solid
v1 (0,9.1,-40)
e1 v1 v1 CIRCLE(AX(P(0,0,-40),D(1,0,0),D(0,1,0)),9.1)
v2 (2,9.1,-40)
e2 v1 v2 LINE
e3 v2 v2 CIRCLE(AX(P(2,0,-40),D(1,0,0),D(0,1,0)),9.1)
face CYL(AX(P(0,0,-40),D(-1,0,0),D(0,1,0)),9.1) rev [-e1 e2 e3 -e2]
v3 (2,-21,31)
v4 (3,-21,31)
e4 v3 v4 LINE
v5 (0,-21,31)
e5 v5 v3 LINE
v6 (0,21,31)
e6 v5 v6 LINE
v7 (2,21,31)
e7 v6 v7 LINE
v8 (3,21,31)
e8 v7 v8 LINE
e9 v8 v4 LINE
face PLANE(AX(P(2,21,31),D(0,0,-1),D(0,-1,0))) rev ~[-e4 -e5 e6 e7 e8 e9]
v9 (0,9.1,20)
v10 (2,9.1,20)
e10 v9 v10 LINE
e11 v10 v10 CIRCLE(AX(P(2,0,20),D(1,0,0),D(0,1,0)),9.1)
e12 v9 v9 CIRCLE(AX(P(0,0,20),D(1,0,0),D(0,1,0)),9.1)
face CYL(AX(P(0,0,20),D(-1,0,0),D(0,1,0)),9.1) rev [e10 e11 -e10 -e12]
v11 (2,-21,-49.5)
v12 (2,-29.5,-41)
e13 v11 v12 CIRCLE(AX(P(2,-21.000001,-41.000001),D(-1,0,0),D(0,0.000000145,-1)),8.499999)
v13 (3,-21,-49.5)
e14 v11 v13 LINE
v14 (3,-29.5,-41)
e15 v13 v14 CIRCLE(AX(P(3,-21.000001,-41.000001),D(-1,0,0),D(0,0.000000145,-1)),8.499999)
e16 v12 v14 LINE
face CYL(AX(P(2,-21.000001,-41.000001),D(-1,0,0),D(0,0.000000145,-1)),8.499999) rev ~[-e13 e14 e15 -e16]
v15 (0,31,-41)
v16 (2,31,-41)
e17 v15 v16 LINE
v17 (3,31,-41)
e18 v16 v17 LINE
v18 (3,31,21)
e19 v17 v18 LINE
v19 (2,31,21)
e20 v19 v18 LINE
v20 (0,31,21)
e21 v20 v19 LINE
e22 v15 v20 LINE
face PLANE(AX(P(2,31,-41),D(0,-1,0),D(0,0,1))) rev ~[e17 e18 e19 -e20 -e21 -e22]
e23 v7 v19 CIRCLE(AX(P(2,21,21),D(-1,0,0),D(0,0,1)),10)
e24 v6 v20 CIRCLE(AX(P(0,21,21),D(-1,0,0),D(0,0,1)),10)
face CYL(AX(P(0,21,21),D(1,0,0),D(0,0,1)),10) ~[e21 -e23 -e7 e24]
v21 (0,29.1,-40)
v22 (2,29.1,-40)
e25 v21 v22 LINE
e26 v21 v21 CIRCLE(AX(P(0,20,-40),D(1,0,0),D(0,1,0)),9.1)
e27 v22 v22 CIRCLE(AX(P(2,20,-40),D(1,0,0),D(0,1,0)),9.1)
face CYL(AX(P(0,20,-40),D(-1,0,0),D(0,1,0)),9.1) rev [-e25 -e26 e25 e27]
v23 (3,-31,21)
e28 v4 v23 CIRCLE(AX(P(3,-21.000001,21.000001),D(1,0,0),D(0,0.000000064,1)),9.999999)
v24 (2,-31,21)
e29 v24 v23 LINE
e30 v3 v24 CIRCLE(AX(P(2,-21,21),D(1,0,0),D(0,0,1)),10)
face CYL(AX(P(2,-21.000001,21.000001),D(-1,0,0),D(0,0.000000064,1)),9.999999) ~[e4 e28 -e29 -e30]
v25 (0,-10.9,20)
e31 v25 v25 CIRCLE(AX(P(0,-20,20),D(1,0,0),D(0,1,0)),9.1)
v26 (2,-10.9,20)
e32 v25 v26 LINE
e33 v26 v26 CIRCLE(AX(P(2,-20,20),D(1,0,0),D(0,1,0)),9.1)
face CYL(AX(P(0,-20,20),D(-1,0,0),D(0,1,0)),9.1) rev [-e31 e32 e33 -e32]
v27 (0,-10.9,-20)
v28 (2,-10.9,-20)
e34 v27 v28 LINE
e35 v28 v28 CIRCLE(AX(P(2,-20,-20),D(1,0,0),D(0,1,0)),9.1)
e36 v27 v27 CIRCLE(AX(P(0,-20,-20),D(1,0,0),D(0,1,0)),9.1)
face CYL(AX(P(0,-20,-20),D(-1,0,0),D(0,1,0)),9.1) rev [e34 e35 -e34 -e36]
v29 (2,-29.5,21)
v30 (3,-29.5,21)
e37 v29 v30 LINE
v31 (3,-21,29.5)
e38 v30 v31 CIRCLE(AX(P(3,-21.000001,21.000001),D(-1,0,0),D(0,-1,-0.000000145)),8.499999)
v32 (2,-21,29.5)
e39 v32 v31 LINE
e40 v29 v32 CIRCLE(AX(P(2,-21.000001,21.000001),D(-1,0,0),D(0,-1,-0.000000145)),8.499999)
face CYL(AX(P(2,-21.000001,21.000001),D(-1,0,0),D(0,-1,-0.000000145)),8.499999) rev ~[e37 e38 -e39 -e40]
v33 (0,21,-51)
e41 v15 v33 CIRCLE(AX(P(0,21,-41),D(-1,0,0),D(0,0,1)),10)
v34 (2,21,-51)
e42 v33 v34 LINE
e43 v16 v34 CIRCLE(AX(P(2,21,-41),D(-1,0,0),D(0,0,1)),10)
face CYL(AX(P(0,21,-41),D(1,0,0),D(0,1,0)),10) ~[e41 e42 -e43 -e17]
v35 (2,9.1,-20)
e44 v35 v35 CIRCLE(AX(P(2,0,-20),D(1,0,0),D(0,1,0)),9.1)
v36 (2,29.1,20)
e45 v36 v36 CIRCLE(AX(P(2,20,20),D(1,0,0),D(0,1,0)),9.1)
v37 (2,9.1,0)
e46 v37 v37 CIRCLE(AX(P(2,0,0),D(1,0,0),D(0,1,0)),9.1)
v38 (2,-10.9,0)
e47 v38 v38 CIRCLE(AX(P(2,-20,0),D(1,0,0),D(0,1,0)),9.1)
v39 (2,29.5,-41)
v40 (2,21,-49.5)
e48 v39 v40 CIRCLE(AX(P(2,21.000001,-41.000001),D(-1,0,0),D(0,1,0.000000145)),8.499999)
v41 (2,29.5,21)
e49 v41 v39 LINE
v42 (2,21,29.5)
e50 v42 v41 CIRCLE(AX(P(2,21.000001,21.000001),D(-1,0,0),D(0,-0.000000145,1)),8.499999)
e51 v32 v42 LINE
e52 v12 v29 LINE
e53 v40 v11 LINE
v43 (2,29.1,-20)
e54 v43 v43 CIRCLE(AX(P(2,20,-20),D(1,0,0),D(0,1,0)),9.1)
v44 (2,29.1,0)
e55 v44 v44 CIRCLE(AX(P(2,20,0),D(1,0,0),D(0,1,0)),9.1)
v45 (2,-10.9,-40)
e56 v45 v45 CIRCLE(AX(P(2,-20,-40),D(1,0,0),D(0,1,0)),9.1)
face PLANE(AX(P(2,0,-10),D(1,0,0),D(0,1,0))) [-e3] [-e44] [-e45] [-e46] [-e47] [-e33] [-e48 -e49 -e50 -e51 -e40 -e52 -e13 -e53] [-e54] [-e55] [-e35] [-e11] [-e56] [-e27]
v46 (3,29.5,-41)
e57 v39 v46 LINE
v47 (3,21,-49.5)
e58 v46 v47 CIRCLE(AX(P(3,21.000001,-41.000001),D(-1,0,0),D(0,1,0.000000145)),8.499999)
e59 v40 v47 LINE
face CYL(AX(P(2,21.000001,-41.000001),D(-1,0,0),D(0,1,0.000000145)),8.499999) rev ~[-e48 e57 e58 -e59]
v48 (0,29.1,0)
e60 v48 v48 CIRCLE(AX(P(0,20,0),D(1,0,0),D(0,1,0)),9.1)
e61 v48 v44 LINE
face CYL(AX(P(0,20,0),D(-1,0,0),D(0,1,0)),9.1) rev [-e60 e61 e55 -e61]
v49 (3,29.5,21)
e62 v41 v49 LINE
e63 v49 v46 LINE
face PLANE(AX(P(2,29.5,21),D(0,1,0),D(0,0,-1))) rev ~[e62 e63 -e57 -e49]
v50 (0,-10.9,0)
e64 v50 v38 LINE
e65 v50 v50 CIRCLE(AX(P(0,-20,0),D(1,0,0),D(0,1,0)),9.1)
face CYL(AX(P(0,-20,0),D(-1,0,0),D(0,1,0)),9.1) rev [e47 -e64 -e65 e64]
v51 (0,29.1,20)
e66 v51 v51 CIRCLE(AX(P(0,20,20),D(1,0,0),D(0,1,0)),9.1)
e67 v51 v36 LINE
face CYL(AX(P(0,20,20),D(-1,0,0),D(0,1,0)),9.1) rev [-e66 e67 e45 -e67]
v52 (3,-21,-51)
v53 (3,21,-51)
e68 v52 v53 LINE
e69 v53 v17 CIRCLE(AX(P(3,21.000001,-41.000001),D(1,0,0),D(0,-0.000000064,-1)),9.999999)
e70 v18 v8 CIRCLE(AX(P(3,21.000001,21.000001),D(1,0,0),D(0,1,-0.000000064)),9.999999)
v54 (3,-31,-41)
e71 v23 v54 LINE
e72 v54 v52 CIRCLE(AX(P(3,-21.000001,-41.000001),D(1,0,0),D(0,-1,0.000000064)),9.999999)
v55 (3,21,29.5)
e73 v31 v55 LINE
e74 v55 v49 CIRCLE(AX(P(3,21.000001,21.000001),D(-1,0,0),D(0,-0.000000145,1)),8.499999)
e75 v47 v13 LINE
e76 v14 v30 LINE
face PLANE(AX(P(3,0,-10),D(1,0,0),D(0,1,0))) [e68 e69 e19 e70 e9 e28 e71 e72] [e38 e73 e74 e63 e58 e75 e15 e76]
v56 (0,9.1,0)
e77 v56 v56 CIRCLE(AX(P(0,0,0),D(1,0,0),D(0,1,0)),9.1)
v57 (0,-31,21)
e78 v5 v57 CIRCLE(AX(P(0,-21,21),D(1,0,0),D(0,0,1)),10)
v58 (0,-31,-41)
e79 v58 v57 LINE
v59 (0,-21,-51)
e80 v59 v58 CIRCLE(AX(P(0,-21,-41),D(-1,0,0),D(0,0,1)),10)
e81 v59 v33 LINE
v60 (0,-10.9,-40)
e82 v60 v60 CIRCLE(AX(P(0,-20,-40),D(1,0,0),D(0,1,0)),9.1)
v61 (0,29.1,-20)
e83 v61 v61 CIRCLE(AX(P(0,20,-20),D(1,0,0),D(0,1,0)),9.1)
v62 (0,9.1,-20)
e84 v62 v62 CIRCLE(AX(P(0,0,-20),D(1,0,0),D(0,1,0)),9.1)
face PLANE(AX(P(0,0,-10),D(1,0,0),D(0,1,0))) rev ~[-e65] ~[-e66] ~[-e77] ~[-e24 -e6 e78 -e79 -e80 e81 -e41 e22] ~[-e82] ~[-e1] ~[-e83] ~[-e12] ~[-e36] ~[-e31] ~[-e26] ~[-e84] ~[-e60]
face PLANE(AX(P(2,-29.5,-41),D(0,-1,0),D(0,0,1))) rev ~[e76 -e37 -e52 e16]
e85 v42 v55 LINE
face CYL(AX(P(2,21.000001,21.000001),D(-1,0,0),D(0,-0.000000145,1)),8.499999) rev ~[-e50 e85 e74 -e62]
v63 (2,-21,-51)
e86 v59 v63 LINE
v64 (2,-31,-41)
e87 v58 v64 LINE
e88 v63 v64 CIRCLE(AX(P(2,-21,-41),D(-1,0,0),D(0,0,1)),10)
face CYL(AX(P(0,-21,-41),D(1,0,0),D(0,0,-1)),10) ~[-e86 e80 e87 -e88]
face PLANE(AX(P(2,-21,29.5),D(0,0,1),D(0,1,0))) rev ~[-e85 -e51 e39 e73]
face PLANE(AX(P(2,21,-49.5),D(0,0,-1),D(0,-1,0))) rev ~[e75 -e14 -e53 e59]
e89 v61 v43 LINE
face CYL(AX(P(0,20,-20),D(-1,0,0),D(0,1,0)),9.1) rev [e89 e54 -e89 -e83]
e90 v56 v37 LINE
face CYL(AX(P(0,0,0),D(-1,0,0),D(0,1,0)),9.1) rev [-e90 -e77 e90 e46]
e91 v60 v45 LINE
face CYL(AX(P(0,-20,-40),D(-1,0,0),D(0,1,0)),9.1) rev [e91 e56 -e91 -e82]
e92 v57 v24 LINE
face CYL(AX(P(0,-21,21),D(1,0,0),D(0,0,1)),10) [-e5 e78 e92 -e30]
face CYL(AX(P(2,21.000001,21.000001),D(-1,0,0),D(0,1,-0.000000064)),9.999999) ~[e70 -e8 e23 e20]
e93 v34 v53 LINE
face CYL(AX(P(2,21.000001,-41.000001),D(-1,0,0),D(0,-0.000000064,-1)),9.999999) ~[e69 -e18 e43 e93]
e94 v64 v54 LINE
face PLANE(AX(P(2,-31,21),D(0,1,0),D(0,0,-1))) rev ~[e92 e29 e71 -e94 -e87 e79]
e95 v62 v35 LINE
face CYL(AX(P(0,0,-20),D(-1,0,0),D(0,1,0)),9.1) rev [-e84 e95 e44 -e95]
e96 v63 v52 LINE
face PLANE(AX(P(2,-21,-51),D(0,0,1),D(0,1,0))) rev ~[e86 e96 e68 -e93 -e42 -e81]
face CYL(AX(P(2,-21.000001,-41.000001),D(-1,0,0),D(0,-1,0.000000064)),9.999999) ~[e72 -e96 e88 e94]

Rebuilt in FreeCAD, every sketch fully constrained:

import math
import FreeCAD as App
import Part
import Sketcher
from FreeCAD import Vector
Q = App.Units.Quantity


def edges_at(feature, points):
    """Names of the edges that pass closest to the given points."""
    edges = feature.Shape.Edges
    near = lambda p: min(range(len(edges)), key=lambda i: edges[i].distToShape(Part.Vertex(*p))[0])
    return sorted({f"Edge{near(p) + 1}" for p in points})


def add_polygon(sketch, points):
    """Adds a closed chain of lines whose ends are joined by coincident constraints."""
    first, n = sketch.GeometryCount, len(points)
    for a, b in zip(points, points[1:] + points[:1]):
        sketch.addGeometry(Part.LineSegment(App.Vector(*a, 0), App.Vector(*b, 0)), False)
    for i in range(n):
        sketch.addConstraint(Sketcher.Constraint("Coincident", first + i, 2, first + (i + 1) % n, 1))

doc = App.newDocument("Part")
body = doc.addObject("PartDesign::Body", "Body")

# Sketch on YZ plane
sketch1 = body.newObject("Sketcher::SketchObject", "Sketch")
sketch1.AttachmentSupport = (doc.getObject("YZ_Plane"), [""])
sketch1.MapMode = "FlatFace"
add_polygon(sketch1, [(-31, 31), (-31, -51), (31, -51), (31, 31)])  # lines 0-3
sketch1.addGeometry(Part.Circle(Vector(-20, -40, 0), Vector(0, 0, 1), 9.1), False)  # 4
sketch1.addGeometry(Part.Circle(Vector(0, -40, 0), Vector(0, 0, 1), 9.1), False)  # 5
sketch1.addGeometry(Part.Circle(Vector(-20, -20, 0), Vector(0, 0, 1), 9.1), False)  # 6
sketch1.addGeometry(Part.Circle(Vector(0, -20, 0), Vector(0, 0, 1), 9.1), False)  # 7
sketch1.addGeometry(Part.Circle(Vector(20, -40, 0), Vector(0, 0, 1), 9.1), False)  # 8
sketch1.addGeometry(Part.Circle(Vector(20, -20, 0), Vector(0, 0, 1), 9.1), False)  # 9
sketch1.addGeometry(Part.Circle(Vector(-20, 0, 0), Vector(0, 0, 1), 9.1), False)  # 10
sketch1.addGeometry(Part.Circle(Vector(0, 0, 0), Vector(0, 0, 1), 9.1), False)  # 11
sketch1.addGeometry(Part.Circle(Vector(-20, 20, 0), Vector(0, 0, 1), 9.1), False)  # 12
sketch1.addGeometry(Part.Circle(Vector(0, 20, 0), Vector(0, 0, 1), 9.1), False)  # 13
sketch1.addGeometry(Part.Circle(Vector(20, 0, 0), Vector(0, 0, 1), 9.1), False)  # 14
sketch1.addGeometry(Part.Circle(Vector(20, 20, 0), Vector(0, 0, 1), 9.1), False)  # 15
sketch1.addConstraint(Sketcher.Constraint("Vertical", 0))
sketch1.addConstraint(Sketcher.Constraint("Horizontal", 1))
sketch1.addConstraint(Sketcher.Constraint("Vertical", 2))
sketch1.addConstraint(Sketcher.Constraint("Horizontal", 3))
sketch1.addConstraint(Sketcher.Constraint("Coincident", 11, 3, -1, 1))
sketch1.addConstraint(Sketcher.Constraint("Equal", 4, 5))
sketch1.addConstraint(Sketcher.Constraint("Equal", 5, 6))
sketch1.addConstraint(Sketcher.Constraint("Equal", 6, 7))
sketch1.addConstraint(Sketcher.Constraint("Equal", 7, 8))
sketch1.addConstraint(Sketcher.Constraint("Equal", 8, 9))
sketch1.addConstraint(Sketcher.Constraint("Equal", 9, 10))
sketch1.addConstraint(Sketcher.Constraint("Equal", 10, 11))
sketch1.addConstraint(Sketcher.Constraint("Equal", 11, 12))
sketch1.addConstraint(Sketcher.Constraint("Equal", 12, 13))
sketch1.addConstraint(Sketcher.Constraint("Equal", 13, 14))
sketch1.addConstraint(Sketcher.Constraint("Equal", 14, 15))
sketch1.addConstraint(Sketcher.Constraint("Symmetric", 9, 3, 12, 3, -1, 1))
sketch1.addConstraint(Sketcher.Constraint("Symmetric", 7, 3, 13, 3, -1, 1))
sketch1.addConstraint(Sketcher.Constraint("Symmetric", 10, 3, 14, 3, -1, 1))
sketch1.addConstraint(Sketcher.Constraint("Symmetric", 6, 3, 15, 3, -1, 1))
sketch1.addConstraint(Sketcher.Constraint("Symmetric", 4, 3, 8, 3, -2))
sketch1.addConstraint(Sketcher.Constraint("Symmetric", 6, 3, 9, 3, -2))
sketch1.addConstraint(Sketcher.Constraint("PointOnObject", 5, 3, -2))
sketch1.addConstraint(Sketcher.Constraint("PointOnObject", 7, 3, -2))
sketch1.addConstraint(Sketcher.Constraint("PointOnObject", 10, 3, -1))
sketch1.addConstraint(Sketcher.Constraint("Horizontal", 4, 3, 5, 3))
sketch1.addConstraint(Sketcher.Constraint("Horizontal", 6, 3, 7, 3))
sketch1.addConstraint(Sketcher.Constraint("Vertical", 4, 3, 6, 3))
sketch1.addConstraint(Sketcher.Constraint("Vertical", 6, 3, 10, 3))
sketch1.addConstraint(Sketcher.Constraint("Diameter", 4, Q("18.2 mm")))
sketch1.addConstraint(Sketcher.Constraint("DistanceX", 1, 1, 1, 2, Q("62 mm")))
sketch1.addConstraint(Sketcher.Constraint("DistanceY", 0, 2, 0, 1, Q("82 mm")))
sketch1.addConstraint(Sketcher.Constraint("DistanceX", 4, 3, -1, 1, Q("20 mm")))
sketch1.addConstraint(Sketcher.Constraint("DistanceY", 4, 3, -1, 1, Q("40 mm")))
sketch1.addConstraint(Sketcher.Constraint("DistanceY", 6, 3, -1, 1, Q("20 mm")))
sketch1.addConstraint(Sketcher.Constraint("DistanceX", 0, 2, -1, 1, Q("31 mm")))
sketch1.addConstraint(Sketcher.Constraint("DistanceY", 0, 2, -1, 1, Q("51 mm")))
pad1 = body.newObject("PartDesign::Pad", "Pad")
pad1.Profile = sketch1
pad1.Length = 2
doc.recompute()

fillet = body.newObject("PartDesign::Fillet", "Fillet")
fillet.Base = (pad1, edges_at(pad1, [(1, 31, 31)]))
fillet.Radius = 10
doc.recompute()

fillet2 = body.newObject("PartDesign::Fillet", "Fillet001")
fillet2.Base = (fillet, edges_at(fillet, [(1, -31, 31)]))
fillet2.Radius = 10
doc.recompute()

fillet3 = body.newObject("PartDesign::Fillet", "Fillet002")
fillet3.Base = (fillet2, edges_at(fillet2, [(1, 31, -51)]))
fillet3.Radius = 10
doc.recompute()

fillet4 = body.newObject("PartDesign::Fillet", "Fillet003")
fillet4.Base = (fillet3, edges_at(fillet3, [(1, -31, -51)]))
fillet4.Radius = 10

# Sketch on YZ plane
sketch2 = body.newObject("Sketcher::SketchObject", "Sketch001")
sketch2.AttachmentSupport = (doc.getObject("YZ_Plane"), [""])
sketch2.MapMode = "FlatFace"
sketch2.AttachmentOffset = App.Placement(Vector(0, 0, 2), App.Rotation())
sketch2.addGeometry(Part.ArcOfCircle(Part.Circle(Vector(-21.000001, -41.000001, 0), Vector(0, 0, 1), 9.999999), math.radians(179.999996), math.radians(270.000004)), False)
sketch2.addGeometry(Part.LineSegment(Vector(-21, -51, 0), Vector(21, -51, 0)), False)
sketch2.addGeometry(Part.ArcOfCircle(Part.Circle(Vector(21.000001, -41.000001, 0), Vector(0, 0, 1), 9.999999), math.radians(-90.000004), math.radians(0.000004)), False)
sketch2.addGeometry(Part.LineSegment(Vector(31, -41, 0), Vector(31, 21, 0)), False)
sketch2.addGeometry(Part.ArcOfCircle(Part.Circle(Vector(21.000001, 21.000001, 0), Vector(0, 0, 1), 9.999999), math.radians(-0.000004), math.radians(90.000004)), False)
sketch2.addGeometry(Part.LineSegment(Vector(21, 31, 0), Vector(-21, 31, 0)), False)
sketch2.addGeometry(Part.ArcOfCircle(Part.Circle(Vector(-21.000001, 21.000001, 0), Vector(0, 0, 1), 9.999999), math.radians(89.999996), math.radians(180.000004)), False)
sketch2.addGeometry(Part.LineSegment(Vector(-31, 21, 0), Vector(-31, -41, 0)), False)
sketch2.addGeometry(Part.LineSegment(Vector(-29.5, -41, 0), Vector(-29.5, 21, 0)), False)
sketch2.addGeometry(Part.ArcOfCircle(Part.Circle(Vector(-21.000001, 21.000001, 0), Vector(0, 0, 1), 8.499999), math.radians(89.999992), math.radians(180.000008)), False)
sketch2.addGeometry(Part.LineSegment(Vector(-21, 29.5, 0), Vector(21, 29.5, 0)), False)
sketch2.addGeometry(Part.ArcOfCircle(Part.Circle(Vector(21.000001, 21.000001, 0), Vector(0, 0, 1), 8.499999), math.radians(-0.000008), math.radians(90.000008)), False)
sketch2.addGeometry(Part.LineSegment(Vector(29.5, 21, 0), Vector(29.5, -41, 0)), False)
sketch2.addGeometry(Part.ArcOfCircle(Part.Circle(Vector(21.000001, -41.000001, 0), Vector(0, 0, 1), 8.499999), math.radians(-90.000008), math.radians(0.000008)), False)
sketch2.addGeometry(Part.LineSegment(Vector(21, -49.5, 0), Vector(-21, -49.5, 0)), False)
sketch2.addGeometry(Part.ArcOfCircle(Part.Circle(Vector(-21.000001, -41.000001, 0), Vector(0, 0, 1), 8.499999), math.radians(179.999992), math.radians(270.000008)), False)
sketch2.addConstraint(Sketcher.Constraint("Tangent", 0, 2, 1, 1))
sketch2.addConstraint(Sketcher.Constraint("Tangent", 1, 2, 2, 1))
sketch2.addConstraint(Sketcher.Constraint("Tangent", 2, 2, 3, 1))
sketch2.addConstraint(Sketcher.Constraint("Tangent", 3, 2, 4, 1))
sketch2.addConstraint(Sketcher.Constraint("Tangent", 4, 2, 5, 1))
sketch2.addConstraint(Sketcher.Constraint("Tangent", 5, 2, 6, 1))
sketch2.addConstraint(Sketcher.Constraint("Tangent", 6, 2, 7, 1))
sketch2.addConstraint(Sketcher.Constraint("Tangent", 7, 2, 0, 1))
sketch2.addConstraint(Sketcher.Constraint("Tangent", 8, 2, 9, 2))
sketch2.addConstraint(Sketcher.Constraint("Tangent", 9, 1, 10, 1))
sketch2.addConstraint(Sketcher.Constraint("Tangent", 10, 2, 11, 2))
sketch2.addConstraint(Sketcher.Constraint("Tangent", 11, 1, 12, 1))
sketch2.addConstraint(Sketcher.Constraint("Tangent", 12, 2, 13, 2))
sketch2.addConstraint(Sketcher.Constraint("Tangent", 13, 1, 14, 1))
sketch2.addConstraint(Sketcher.Constraint("Tangent", 14, 2, 15, 2))
sketch2.addConstraint(Sketcher.Constraint("Tangent", 15, 1, 8, 1))
sketch2.addConstraint(Sketcher.Constraint("Horizontal", 1))
sketch2.addConstraint(Sketcher.Constraint("Vertical", 3))
sketch2.addConstraint(Sketcher.Constraint("Horizontal", 5))
sketch2.addConstraint(Sketcher.Constraint("Vertical", 7))
sketch2.addConstraint(Sketcher.Constraint("Vertical", 8))
sketch2.addConstraint(Sketcher.Constraint("Horizontal", 10))
sketch2.addConstraint(Sketcher.Constraint("Vertical", 12))
sketch2.addConstraint(Sketcher.Constraint("Horizontal", 14))
sketch2.addConstraint(Sketcher.Constraint("Coincident", 9, 3, 6, 3))
sketch2.addConstraint(Sketcher.Constraint("Coincident", 11, 3, 4, 3))
sketch2.addConstraint(Sketcher.Constraint("Coincident", 13, 3, 2, 3))
sketch2.addConstraint(Sketcher.Constraint("Equal", 0, 2))
sketch2.addConstraint(Sketcher.Constraint("Equal", 2, 4))
sketch2.addConstraint(Sketcher.Constraint("Equal", 4, 6))
sketch2.addConstraint(Sketcher.Constraint("Equal", 13, 15))
sketch2.addConstraint(Sketcher.Constraint("Radius", 0, Q("9.999999 mm")))
sketch2.addConstraint(Sketcher.Constraint("Radius", 9, Q("8.499999 mm")))
sketch2.addConstraint(Sketcher.Constraint("DistanceX", 1, 1, 1, 2, Q("42 mm")))
sketch2.addConstraint(Sketcher.Constraint("DistanceY", 3, 1, 3, 2, Q("62 mm")))
sketch2.addConstraint(Sketcher.Constraint("DistanceX", 0, 3, -1, 1, Q("21.000001 mm")))
sketch2.addConstraint(Sketcher.Constraint("DistanceY", 0, 3, -1, 1, Q("41.000001 mm")))
pad2 = body.newObject("PartDesign::Pad", "Pad001")
pad2.Profile = sketch2
pad2.Length = 1

doc.recompute()
